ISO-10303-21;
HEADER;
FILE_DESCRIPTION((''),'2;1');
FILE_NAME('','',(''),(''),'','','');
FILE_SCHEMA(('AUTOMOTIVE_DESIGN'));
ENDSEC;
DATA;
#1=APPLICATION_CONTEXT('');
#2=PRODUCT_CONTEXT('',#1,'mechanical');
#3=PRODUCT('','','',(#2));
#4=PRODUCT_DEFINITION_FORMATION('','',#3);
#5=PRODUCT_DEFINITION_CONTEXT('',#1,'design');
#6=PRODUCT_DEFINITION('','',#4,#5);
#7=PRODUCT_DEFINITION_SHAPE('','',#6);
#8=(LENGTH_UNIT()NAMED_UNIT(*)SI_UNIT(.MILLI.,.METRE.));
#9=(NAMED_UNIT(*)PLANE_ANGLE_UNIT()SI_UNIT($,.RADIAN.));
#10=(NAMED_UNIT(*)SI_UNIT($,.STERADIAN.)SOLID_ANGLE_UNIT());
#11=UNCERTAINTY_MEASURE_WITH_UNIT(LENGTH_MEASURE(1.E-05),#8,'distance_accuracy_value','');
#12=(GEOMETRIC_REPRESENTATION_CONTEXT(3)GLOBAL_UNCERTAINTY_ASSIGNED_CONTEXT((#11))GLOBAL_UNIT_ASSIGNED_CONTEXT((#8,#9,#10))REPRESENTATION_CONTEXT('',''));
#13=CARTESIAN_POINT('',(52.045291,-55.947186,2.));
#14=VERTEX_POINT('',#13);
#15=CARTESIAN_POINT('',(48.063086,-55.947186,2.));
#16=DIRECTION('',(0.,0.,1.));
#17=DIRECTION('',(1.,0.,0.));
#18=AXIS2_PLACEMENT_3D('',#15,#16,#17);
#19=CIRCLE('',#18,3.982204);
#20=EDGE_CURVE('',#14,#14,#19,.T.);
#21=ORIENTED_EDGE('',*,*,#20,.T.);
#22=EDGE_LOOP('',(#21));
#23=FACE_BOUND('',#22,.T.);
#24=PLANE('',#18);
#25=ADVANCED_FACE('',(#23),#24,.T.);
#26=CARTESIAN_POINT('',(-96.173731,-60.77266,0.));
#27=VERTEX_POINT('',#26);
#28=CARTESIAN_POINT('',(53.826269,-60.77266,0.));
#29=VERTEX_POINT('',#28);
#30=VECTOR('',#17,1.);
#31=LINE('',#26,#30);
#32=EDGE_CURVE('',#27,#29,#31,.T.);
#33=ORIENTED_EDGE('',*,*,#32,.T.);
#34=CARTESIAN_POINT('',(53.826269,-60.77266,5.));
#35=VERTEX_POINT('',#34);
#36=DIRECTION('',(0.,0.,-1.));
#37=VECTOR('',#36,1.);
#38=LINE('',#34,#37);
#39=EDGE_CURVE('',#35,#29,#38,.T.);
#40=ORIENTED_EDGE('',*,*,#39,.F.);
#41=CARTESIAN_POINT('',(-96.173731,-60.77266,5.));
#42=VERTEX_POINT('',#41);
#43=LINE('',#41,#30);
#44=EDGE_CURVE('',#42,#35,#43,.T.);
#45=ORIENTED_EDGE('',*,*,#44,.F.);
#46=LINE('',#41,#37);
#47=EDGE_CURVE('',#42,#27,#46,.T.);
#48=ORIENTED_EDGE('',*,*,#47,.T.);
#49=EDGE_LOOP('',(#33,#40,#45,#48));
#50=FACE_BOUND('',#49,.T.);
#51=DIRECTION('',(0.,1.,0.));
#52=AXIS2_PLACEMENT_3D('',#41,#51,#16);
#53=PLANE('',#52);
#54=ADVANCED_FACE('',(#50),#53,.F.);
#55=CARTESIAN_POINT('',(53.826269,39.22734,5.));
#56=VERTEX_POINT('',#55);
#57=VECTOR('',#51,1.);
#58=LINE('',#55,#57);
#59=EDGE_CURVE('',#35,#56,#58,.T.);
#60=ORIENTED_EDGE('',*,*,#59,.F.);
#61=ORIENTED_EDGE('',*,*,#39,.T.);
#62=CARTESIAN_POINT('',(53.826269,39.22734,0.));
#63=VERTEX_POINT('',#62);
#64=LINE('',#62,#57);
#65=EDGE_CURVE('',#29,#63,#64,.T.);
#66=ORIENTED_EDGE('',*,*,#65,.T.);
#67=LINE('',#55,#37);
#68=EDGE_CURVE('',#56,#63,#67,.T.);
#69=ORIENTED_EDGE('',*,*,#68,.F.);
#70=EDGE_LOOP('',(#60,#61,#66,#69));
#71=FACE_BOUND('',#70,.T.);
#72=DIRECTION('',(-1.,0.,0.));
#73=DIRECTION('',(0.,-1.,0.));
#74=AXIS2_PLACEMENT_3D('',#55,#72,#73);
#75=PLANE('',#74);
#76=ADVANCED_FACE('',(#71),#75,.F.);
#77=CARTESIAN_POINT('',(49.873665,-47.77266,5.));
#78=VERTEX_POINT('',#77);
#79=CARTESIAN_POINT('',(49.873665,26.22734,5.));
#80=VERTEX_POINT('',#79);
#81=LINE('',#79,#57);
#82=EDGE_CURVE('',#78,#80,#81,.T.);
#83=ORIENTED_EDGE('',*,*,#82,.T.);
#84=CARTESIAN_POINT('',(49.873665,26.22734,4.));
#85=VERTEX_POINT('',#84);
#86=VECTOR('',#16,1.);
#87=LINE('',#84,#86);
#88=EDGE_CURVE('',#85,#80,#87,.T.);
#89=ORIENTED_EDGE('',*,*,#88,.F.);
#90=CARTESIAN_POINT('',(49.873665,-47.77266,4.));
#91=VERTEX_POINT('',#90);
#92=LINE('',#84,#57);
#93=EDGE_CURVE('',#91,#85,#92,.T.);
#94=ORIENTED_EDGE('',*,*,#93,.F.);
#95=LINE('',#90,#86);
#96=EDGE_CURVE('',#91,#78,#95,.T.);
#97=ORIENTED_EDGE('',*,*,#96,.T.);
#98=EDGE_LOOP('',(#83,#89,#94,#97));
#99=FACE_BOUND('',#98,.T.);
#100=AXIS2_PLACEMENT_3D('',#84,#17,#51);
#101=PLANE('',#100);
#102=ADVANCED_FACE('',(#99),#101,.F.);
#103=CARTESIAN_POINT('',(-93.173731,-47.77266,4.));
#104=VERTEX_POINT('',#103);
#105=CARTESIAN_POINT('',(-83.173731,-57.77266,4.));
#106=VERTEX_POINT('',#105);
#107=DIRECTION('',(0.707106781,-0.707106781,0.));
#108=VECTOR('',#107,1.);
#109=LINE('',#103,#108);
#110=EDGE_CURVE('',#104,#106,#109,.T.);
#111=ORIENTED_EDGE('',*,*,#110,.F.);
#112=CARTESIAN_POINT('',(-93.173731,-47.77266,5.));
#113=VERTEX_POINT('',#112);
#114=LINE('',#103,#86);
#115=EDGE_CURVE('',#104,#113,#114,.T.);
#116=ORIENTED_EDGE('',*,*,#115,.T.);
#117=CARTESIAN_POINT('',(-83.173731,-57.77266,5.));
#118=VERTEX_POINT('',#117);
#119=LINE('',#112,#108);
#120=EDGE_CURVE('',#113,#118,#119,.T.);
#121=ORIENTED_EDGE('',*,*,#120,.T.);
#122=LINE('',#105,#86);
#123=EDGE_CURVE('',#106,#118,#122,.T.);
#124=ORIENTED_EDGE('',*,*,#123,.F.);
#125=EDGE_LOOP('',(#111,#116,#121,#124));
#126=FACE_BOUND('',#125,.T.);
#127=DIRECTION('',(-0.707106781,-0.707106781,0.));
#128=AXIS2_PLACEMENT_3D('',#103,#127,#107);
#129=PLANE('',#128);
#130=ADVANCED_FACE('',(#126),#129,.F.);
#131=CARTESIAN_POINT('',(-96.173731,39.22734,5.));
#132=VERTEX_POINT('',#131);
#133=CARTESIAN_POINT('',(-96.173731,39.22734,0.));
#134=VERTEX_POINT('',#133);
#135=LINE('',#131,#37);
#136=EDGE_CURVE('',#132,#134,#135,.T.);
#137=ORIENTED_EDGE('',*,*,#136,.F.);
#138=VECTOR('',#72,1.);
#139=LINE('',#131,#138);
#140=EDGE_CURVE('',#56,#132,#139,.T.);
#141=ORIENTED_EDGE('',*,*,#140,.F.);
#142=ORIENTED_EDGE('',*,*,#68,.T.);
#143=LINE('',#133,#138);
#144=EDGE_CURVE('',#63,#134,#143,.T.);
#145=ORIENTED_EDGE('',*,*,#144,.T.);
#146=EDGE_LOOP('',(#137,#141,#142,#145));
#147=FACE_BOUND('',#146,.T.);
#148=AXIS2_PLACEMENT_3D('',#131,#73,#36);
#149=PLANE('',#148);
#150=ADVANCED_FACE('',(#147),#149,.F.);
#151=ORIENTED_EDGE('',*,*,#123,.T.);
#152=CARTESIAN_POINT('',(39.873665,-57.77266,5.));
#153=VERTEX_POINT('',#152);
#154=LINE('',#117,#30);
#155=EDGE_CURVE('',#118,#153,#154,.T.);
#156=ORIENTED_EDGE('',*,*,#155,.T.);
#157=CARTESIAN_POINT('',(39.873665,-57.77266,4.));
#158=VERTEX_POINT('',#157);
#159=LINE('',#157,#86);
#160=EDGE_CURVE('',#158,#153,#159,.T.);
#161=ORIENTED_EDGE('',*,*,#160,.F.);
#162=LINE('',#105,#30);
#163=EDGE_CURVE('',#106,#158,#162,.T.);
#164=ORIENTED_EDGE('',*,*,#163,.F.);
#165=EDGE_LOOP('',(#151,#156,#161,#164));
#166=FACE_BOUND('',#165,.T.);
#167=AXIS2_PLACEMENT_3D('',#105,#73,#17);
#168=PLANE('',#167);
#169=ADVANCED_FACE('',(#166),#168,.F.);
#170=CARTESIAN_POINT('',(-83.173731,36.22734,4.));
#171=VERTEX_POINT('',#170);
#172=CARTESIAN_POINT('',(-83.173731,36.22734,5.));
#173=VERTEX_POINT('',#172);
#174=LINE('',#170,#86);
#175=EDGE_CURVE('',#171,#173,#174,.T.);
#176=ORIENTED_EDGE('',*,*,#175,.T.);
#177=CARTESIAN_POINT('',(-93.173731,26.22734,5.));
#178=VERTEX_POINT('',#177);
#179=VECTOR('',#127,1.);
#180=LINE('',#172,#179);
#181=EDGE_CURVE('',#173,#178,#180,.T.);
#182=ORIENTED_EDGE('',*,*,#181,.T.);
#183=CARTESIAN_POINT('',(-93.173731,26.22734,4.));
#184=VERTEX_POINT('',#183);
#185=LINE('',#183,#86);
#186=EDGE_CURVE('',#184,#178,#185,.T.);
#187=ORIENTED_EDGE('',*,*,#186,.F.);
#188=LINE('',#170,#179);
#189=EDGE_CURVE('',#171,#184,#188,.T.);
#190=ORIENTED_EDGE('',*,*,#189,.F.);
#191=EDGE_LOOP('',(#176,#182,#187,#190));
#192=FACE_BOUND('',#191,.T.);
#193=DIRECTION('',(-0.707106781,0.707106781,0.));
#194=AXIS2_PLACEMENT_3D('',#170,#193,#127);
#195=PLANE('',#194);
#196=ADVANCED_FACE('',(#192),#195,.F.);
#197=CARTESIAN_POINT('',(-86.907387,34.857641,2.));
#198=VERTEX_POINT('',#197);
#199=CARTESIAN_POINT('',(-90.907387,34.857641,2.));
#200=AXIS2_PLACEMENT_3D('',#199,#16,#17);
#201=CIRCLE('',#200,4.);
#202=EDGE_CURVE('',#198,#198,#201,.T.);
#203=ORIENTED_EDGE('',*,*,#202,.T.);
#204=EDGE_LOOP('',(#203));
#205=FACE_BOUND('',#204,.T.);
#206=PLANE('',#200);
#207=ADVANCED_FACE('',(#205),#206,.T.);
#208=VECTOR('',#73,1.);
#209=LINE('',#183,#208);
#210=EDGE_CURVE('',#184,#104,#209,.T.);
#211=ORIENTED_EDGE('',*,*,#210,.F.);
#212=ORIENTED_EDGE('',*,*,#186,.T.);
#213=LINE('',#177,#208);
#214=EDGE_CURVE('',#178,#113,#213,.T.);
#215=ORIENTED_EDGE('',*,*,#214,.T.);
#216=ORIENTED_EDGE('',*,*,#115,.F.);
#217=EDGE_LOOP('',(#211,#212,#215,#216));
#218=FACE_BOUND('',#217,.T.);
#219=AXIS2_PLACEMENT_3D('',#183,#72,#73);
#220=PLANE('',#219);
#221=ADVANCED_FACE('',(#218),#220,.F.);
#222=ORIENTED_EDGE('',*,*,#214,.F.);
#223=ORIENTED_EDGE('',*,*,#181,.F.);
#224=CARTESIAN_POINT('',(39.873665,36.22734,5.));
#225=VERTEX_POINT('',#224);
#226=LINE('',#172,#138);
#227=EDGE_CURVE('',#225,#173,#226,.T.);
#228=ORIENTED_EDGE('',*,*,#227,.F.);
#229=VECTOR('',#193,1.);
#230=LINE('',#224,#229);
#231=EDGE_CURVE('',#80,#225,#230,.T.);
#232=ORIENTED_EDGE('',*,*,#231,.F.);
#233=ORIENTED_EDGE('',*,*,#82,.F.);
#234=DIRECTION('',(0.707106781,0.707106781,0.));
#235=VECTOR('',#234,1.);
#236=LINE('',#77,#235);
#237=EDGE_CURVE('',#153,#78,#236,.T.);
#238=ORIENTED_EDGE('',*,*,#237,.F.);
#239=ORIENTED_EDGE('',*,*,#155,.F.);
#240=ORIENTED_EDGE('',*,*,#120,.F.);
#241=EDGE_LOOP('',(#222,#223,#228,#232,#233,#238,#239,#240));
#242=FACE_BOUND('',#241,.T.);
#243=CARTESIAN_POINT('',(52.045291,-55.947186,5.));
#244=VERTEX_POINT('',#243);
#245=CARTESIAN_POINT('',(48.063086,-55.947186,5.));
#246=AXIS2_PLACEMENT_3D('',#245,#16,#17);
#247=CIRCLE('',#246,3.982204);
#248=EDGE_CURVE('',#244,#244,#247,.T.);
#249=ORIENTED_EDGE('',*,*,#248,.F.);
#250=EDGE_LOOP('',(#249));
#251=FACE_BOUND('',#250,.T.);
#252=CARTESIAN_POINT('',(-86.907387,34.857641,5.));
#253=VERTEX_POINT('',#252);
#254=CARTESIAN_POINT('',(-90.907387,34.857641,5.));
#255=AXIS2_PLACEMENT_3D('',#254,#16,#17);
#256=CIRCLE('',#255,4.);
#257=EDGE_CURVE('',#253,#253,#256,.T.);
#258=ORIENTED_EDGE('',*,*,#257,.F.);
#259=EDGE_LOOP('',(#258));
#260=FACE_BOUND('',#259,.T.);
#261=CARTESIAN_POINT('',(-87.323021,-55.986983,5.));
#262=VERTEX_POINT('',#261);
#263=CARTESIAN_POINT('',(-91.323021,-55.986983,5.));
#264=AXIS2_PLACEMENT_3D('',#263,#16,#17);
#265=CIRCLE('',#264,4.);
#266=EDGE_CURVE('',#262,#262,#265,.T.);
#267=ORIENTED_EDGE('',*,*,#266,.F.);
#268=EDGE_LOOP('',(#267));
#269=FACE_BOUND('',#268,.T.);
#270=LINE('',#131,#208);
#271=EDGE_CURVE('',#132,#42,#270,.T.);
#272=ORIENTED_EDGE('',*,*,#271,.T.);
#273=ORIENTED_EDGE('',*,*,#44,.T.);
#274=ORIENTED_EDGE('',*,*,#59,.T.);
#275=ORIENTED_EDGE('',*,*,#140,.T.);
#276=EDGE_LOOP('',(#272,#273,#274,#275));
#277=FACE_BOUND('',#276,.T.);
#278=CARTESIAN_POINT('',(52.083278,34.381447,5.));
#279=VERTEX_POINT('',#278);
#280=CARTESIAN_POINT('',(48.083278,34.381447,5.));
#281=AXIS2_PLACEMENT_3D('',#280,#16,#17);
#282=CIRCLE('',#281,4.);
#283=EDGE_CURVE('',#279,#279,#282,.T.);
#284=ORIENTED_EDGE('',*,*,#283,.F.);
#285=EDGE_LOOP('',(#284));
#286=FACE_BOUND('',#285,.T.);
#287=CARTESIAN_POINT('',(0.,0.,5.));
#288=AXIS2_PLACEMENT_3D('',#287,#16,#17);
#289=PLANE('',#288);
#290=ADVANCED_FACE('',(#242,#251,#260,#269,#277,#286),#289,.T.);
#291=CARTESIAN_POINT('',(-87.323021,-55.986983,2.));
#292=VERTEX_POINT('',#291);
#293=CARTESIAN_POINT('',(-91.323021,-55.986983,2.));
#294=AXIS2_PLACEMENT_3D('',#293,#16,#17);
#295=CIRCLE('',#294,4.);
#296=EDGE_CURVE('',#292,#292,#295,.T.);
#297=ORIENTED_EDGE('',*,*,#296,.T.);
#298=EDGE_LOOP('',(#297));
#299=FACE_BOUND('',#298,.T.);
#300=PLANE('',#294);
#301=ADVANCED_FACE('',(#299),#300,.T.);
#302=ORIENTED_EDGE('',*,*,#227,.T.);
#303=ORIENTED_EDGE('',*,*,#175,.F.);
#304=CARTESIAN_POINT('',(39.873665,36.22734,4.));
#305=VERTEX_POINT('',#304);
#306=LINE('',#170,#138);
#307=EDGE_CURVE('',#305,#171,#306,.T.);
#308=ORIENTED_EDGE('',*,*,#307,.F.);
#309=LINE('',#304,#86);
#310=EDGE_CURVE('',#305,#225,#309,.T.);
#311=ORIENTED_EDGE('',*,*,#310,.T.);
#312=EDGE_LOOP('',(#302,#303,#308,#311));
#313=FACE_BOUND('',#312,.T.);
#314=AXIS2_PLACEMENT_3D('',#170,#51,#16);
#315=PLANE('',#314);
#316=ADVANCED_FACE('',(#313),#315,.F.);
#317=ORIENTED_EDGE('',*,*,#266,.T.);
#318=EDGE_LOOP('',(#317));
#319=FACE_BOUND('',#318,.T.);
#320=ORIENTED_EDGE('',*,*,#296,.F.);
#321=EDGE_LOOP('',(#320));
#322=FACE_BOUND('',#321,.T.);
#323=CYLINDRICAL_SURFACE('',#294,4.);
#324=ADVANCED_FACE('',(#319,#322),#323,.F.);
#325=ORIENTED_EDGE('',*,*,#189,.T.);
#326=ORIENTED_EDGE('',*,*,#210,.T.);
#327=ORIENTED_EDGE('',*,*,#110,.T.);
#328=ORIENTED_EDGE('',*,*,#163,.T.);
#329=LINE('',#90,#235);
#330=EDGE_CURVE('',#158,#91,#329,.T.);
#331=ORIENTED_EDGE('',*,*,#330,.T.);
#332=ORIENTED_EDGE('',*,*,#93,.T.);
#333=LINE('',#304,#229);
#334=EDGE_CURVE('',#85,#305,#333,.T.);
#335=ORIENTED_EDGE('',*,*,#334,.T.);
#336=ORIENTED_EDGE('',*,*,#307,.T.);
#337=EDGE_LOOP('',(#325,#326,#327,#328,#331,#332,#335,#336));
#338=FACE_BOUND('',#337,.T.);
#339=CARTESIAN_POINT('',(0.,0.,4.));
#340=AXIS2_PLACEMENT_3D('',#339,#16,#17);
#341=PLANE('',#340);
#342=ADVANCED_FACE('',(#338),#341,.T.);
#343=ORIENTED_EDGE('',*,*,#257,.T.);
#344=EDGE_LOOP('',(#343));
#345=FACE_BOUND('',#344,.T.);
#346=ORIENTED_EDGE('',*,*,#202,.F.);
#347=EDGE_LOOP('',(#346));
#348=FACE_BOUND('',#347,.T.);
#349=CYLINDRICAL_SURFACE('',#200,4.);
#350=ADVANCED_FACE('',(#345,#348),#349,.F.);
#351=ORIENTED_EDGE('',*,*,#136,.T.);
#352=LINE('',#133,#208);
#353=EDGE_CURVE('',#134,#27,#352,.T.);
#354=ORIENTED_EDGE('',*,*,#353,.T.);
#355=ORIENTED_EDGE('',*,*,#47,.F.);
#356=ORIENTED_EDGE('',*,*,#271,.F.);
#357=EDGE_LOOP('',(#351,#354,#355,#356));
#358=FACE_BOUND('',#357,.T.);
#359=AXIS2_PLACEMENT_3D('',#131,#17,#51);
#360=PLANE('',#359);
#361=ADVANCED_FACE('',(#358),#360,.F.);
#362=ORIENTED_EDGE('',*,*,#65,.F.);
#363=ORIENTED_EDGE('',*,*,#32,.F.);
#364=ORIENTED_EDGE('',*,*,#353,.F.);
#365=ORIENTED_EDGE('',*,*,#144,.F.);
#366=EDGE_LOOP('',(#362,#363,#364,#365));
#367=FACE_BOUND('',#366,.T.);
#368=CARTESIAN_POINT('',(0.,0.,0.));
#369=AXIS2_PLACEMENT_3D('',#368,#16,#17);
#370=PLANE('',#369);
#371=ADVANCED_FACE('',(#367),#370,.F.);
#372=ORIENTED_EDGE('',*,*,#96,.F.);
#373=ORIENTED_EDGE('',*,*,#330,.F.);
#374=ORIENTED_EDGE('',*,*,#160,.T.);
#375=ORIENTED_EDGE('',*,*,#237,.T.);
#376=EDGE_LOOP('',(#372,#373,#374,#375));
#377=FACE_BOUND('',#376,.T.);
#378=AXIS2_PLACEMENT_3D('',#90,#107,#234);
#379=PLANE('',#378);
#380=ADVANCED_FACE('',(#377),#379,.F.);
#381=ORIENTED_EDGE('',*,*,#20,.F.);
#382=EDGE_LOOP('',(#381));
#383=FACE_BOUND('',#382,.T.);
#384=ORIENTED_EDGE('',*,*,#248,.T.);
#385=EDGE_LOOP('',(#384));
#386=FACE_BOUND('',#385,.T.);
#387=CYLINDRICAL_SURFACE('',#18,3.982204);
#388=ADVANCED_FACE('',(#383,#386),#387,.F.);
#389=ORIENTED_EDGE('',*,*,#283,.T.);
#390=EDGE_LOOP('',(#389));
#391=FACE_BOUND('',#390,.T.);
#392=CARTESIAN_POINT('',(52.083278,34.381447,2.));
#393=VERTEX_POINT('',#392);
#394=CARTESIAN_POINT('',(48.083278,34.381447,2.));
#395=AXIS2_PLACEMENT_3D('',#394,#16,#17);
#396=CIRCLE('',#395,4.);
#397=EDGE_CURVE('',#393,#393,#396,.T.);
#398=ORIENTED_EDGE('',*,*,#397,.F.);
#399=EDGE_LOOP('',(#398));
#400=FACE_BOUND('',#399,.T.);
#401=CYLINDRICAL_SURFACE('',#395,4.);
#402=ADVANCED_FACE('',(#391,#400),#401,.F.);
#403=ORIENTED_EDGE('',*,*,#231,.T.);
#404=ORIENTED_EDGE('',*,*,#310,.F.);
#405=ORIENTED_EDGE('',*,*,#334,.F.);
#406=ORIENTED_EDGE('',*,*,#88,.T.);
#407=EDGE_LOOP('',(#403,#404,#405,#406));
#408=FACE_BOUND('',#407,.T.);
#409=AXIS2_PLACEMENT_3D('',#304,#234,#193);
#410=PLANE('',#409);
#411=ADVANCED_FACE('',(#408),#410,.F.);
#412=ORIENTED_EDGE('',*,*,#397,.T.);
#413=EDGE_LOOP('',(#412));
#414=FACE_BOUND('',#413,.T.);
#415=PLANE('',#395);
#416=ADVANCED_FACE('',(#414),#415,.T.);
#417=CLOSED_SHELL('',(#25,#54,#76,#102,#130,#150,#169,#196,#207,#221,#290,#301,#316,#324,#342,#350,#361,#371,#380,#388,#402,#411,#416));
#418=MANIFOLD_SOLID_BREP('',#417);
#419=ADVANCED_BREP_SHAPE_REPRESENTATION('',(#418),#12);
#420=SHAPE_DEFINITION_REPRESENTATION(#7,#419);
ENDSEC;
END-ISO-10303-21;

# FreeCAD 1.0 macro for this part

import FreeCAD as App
import Part
import Sketcher
from FreeCAD import Vector


def add_polygon(sketch, points):
    """Adds a closed chain of lines whose ends are joined by coincident constraints."""
    first, n = sketch.GeometryCount, len(points)
    for a, b in zip(points, points[1:] + points[:1]):
        sketch.addGeometry(Part.LineSegment(App.Vector(*a, 0), App.Vector(*b, 0)), False)
    for i in range(n):
        sketch.addConstraint(Sketcher.Constraint("Coincident", first + i, 2, first + (i + 1) % n, 1))

doc = App.newDocument("Part")
body = doc.addObject("PartDesign::Body", "Body")

# Sketch on XY plane
sketch1 = body.newObject("Sketcher::SketchObject", "Sketch")
sketch1.AttachmentSupport = (doc.getObject("XY_Plane"), [""])
sketch1.MapMode = "FlatFace"
add_polygon(sketch1, [(-96, 39), (-96, -61), (54, -61), (54, 39)])  # lines 0-3
sketch1.addConstraint(Sketcher.Constraint("Vertical", 0))
sketch1.addConstraint(Sketcher.Constraint("Horizontal", 1))
sketch1.addConstraint(Sketcher.Constraint("Vertical", 2))
sketch1.addConstraint(Sketcher.Constraint("Horizontal", 3))
sketch1.addConstraint(Sketcher.Constraint("DistanceX", 1, 1, 1, 2, 150.0))
sketch1.addConstraint(Sketcher.Constraint("DistanceY", 0, 2, 0, 1, 100.0))
sketch1.addConstraint(Sketcher.Constraint("DistanceX", 0, 2, -1, 1, 96.173731))
sketch1.addConstraint(Sketcher.Constraint("DistanceY", 0, 2, -1, 1, 60.77266))
pad1 = body.newObject("PartDesign::Pad", "Pad")
pad1.Profile = sketch1
pad1.Length = 5

# Sketch on XY plane
sketch2 = body.newObject("Sketcher::SketchObject", "Sketch001")
sketch2.AttachmentSupport = (doc.getObject("XY_Plane"), [""])
sketch2.MapMode = "FlatFace"
sketch2.AttachmentOffset = App.Placement(Vector(0, 0, 5), App.Rotation())
add_polygon(sketch2, [(40, 36), (-83, 36), (-93, 26), (-93, -48), (-83, -58), (40, -58), (50, -48), (50, 26)])  # lines 0-7
sketch2.addConstraint(Sketcher.Constraint("Horizontal", 0))
sketch2.addConstraint(Sketcher.Constraint("Vertical", 2))
sketch2.addConstraint(Sketcher.Constraint("Horizontal", 4))
sketch2.addConstraint(Sketcher.Constraint("Vertical", 6))
sketch2.addConstraint(Sketcher.Constraint("Perpendicular", 1, 3))
sketch2.addConstraint(Sketcher.Constraint("Perpendicular", 3, 5))
sketch2.addConstraint(Sketcher.Constraint("Perpendicular", 5, 7))
sketch2.addConstraint(Sketcher.Constraint("Horizontal", 2, 2, 5, 2))
sketch2.addConstraint(Sketcher.Constraint("Horizontal", 1, 2, 6, 2))
sketch2.addConstraint(Sketcher.Constraint("Vertical", 0, 2, 3, 2))
sketch2.addConstraint(Sketcher.Constraint("Vertical", 4, 2, 7, 2))
sketch2.addConstraint(Sketcher.Constraint("DistanceY", 2, 2, 2, 1, 74.0))
sketch2.addConstraint(Sketcher.Constraint("DistanceX", 1, 2, 0, 2, 10.0))
sketch2.addConstraint(Sketcher.Constraint("DistanceX", 0, 2, 0, 1, 123.047396))
sketch2.addConstraint(Sketcher.Constraint("DistanceX", 0, 2, -1, 1, 83.173731))
sketch2.addConstraint(Sketcher.Constraint("DistanceY", -1, 1, 0, 2, 36.22734))
pocket1 = body.newObject("PartDesign::Pocket", "Pocket")
pocket1.Profile = sketch2
pocket1.Length = 1

# Sketch on XY plane
sketch3 = body.newObject("Sketcher::SketchObject", "Sketch002")
sketch3.AttachmentSupport = (doc.getObject("XY_Plane"), [""])
sketch3.MapMode = "FlatFace"
sketch3.AttachmentOffset = App.Placement(Vector(0, 0, 5), App.Rotation())
sketch3.addGeometry(Part.Circle(Vector(-90.9, 34.9, 0), Vector(0, 0, 1), 4), False)
sketch3.addConstraint(Sketcher.Constraint("Diameter", 0, 8.0))
sketch3.addConstraint(Sketcher.Constraint("DistanceY", -1, 1, 0, 3, 34.857641))
sketch3.addConstraint(Sketcher.Constraint("DistanceX", 0, 3, -1, 1, 90.907387))
pocket2 = body.newObject("PartDesign::Pocket", "Pocket001")
pocket2.Profile = sketch3
pocket2.Length = 3

# Sketch on XY plane
sketch4 = body.newObject("Sketcher::SketchObject", "Sketch003")
sketch4.AttachmentSupport = (doc.getObject("XY_Plane"), [""])
sketch4.MapMode = "FlatFace"
sketch4.AttachmentOffset = App.Placement(Vector(0, 0, 5), App.Rotation())
sketch4.addGeometry(Part.Circle(Vector(48.1, 34.4, 0), Vector(0, 0, 1), 4), False)
sketch4.addConstraint(Sketcher.Constraint("Diameter", 0, 8.0))
sketch4.addConstraint(Sketcher.Constraint("DistanceX", -1, 1, 0, 3, 48.083278))
sketch4.addConstraint(Sketcher.Constraint("DistanceY", -1, 1, 0, 3, 34.381447))
pocket3 = body.newObject("PartDesign::Pocket", "Pocket002")
pocket3.Profile = sketch4
pocket3.Length = 3

# Sketch on XY plane
sketch5 = body.newObject("Sketcher::SketchObject", "Sketch004")
sketch5.AttachmentSupport = (doc.getObject("XY_Plane"), [""])
sketch5.MapMode = "FlatFace"
sketch5.AttachmentOffset = App.Placement(Vector(0, 0, 5), App.Rotation())
sketch5.addGeometry(Part.Circle(Vector(-91.3, -56, 0), Vector(0, 0, 1), 4), False)
sketch5.addConstraint(Sketcher.Constraint("Diameter", 0, 8.0))
sketch5.addConstraint(Sketcher.Constraint("DistanceX", 0, 3, -1, 1, 91.323021))
sketch5.addConstraint(Sketcher.Constraint("DistanceY", 0, 3, -1, 1, 55.986983))
pocket4 = body.newObject("PartDesign::Pocket", "Pocket003")
pocket4.Profile = sketch5
pocket4.Length = 3

# Sketch on XY plane
sketch6 = body.newObject("Sketcher::SketchObject", "Sketch005")
sketch6.AttachmentSupport = (doc.getObject("XY_Plane"), [""])
sketch6.MapMode = "FlatFace"
sketch6.AttachmentOffset = App.Placement(Vector(0, 0, 5), App.Rotation())
sketch6.addGeometry(Part.Circle(Vector(48.1, -55.9, 0), Vector(0, 0, 1), 4), False)
sketch6.addConstraint(Sketcher.Constraint("Diameter", 0, 7.964409))
sketch6.addConstraint(Sketcher.Constraint("DistanceX", -1, 1, 0, 3, 48.063086))
sketch6.addConstraint(Sketcher.Constraint("DistanceY", 0, 3, -1, 1, 55.947186))
pocket5 = body.newObject("PartDesign::Pocket", "Pocket004")
pocket5.Profile = sketch6
pocket5.Length = 3

doc.recompute()
